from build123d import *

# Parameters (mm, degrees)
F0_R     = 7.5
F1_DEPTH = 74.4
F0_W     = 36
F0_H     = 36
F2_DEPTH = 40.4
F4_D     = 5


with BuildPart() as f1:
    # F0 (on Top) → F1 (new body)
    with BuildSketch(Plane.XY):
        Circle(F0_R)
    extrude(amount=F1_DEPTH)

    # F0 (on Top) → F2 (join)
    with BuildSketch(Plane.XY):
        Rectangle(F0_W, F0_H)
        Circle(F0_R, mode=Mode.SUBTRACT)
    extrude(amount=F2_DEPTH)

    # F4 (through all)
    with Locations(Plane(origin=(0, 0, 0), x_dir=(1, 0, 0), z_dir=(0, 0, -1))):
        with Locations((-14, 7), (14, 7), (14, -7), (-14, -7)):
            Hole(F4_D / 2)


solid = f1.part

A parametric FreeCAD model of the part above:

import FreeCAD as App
import Part
import Sketcher


def add_polygon(sketch, points):
    """Adds a closed chain of lines whose ends are joined by coincident constraints."""
    first, n = sketch.GeometryCount, len(points)
    for a, b in zip(points, points[1:] + points[:1]):
        sketch.addGeometry(Part.LineSegment(App.Vector(*a, 0), App.Vector(*b, 0)), False)
    for i in range(n):
        sketch.addConstraint(Sketcher.Constraint("Coincident", first + i, 2, first + (i + 1) % n, 1))

doc = App.newDocument("Part")
body = doc.addObject("PartDesign::Body", "Body")

sketch1 = body.newObject("Sketcher::SketchObject", "Sketch")
sketch1.AttachmentSupport = (doc.getObject("XY_Plane"), [""])
sketch1.MapMode = "FlatFace"
sketch1.addGeometry(Part.Circle(App.Vector(0, 0, 0), App.Vector(0, 0, 1), 7.5), False)
sketch1.addConstraint([
    Sketcher.Constraint("Coincident", 0, 3, -1, 1),
    Sketcher.Constraint("Diameter", 0, 15.0),
])
pad1 = body.newObject("PartDesign::Pad", "Pad")
pad1.Profile = sketch1
pad1.Length = 74.4

sketch2 = body.newObject("Sketcher::SketchObject", "Sketch001")
sketch2.AttachmentSupport = (doc.getObject("XY_Plane"), [""])
sketch2.MapMode = "FlatFace"
add_polygon(sketch2, [(-18, 18), (-18, -18), (18, -18), (18, 18)])
sketch2.addGeometry(Part.Circle(App.Vector(0, 0, 0), App.Vector(0, 0, 1), 7.5), False)
sketch2.addConstraint([
    Sketcher.Constraint("Vertical", 0),
    Sketcher.Constraint("Horizontal", 1),
    Sketcher.Constraint("Vertical", 2),
    Sketcher.Constraint("Horizontal", 3),
    Sketcher.Constraint("Coincident", 4, 3, -1, 1),
    Sketcher.Constraint("Symmetric", 0, 2, 2, 2, -1, 1),
    Sketcher.Constraint("Equal", 3, 0),
    Sketcher.Constraint("Diameter", 4, 15.0),
    Sketcher.Constraint("DistanceX", 1, 1, 1, 2, 36.0),
])
pad2 = body.newObject("PartDesign::Pad", "Pad001")
pad2.Profile = sketch2
pad2.Length = 40.4

sketch3 = body.newObject("Sketcher::SketchObject", "Sketch002")
sketch3.AttachmentSupport = (doc.getObject("XY_Plane"), [""])
sketch3.MapMode = "FlatFace"
sketch3.addGeometry([
    Part.Circle(App.Vector(-14, -7, 0), App.Vector(0, 0, 1), 2.5),
    Part.Circle(App.Vector(14, -7, 0), App.Vector(0, 0, 1), 2.5),
    Part.Circle(App.Vector(14, 7, 0), App.Vector(0, 0, 1), 2.5),
    Part.Circle(App.Vector(-14, 7, 0), App.Vector(0, 0, 1), 2.5),
], False)
sketch3.addConstraint([
    Sketcher.Constraint("Equal", 0, 1),
    Sketcher.Constraint("Equal", 1, 2),
    Sketcher.Constraint("Equal", 2, 3),
    Sketcher.Constraint("Symmetric", 0, 3, 2, 3, -1, 1),
    Sketcher.Constraint("Symmetric", 1, 3, 3, 3, -1, 1),
    Sketcher.Constraint("Symmetric", 0, 3, 1, 3, -2),
    Sketcher.Constraint("Diameter", 0, 5.0),
    Sketcher.Constraint("DistanceX", 0, 3, -1, 1, 14.0),
    Sketcher.Constraint("DistanceY", 0, 3, -1, 1, 7.0),
])
doc.recompute()
hole = body.newObject("PartDesign::Hole", "Hole")
hole.Profile = sketch3
hole.ThreadType = "None"
hole.Diameter = 5
hole.DepthType = "ThroughAll"
hole.Reversed = True

doc.recompute()
